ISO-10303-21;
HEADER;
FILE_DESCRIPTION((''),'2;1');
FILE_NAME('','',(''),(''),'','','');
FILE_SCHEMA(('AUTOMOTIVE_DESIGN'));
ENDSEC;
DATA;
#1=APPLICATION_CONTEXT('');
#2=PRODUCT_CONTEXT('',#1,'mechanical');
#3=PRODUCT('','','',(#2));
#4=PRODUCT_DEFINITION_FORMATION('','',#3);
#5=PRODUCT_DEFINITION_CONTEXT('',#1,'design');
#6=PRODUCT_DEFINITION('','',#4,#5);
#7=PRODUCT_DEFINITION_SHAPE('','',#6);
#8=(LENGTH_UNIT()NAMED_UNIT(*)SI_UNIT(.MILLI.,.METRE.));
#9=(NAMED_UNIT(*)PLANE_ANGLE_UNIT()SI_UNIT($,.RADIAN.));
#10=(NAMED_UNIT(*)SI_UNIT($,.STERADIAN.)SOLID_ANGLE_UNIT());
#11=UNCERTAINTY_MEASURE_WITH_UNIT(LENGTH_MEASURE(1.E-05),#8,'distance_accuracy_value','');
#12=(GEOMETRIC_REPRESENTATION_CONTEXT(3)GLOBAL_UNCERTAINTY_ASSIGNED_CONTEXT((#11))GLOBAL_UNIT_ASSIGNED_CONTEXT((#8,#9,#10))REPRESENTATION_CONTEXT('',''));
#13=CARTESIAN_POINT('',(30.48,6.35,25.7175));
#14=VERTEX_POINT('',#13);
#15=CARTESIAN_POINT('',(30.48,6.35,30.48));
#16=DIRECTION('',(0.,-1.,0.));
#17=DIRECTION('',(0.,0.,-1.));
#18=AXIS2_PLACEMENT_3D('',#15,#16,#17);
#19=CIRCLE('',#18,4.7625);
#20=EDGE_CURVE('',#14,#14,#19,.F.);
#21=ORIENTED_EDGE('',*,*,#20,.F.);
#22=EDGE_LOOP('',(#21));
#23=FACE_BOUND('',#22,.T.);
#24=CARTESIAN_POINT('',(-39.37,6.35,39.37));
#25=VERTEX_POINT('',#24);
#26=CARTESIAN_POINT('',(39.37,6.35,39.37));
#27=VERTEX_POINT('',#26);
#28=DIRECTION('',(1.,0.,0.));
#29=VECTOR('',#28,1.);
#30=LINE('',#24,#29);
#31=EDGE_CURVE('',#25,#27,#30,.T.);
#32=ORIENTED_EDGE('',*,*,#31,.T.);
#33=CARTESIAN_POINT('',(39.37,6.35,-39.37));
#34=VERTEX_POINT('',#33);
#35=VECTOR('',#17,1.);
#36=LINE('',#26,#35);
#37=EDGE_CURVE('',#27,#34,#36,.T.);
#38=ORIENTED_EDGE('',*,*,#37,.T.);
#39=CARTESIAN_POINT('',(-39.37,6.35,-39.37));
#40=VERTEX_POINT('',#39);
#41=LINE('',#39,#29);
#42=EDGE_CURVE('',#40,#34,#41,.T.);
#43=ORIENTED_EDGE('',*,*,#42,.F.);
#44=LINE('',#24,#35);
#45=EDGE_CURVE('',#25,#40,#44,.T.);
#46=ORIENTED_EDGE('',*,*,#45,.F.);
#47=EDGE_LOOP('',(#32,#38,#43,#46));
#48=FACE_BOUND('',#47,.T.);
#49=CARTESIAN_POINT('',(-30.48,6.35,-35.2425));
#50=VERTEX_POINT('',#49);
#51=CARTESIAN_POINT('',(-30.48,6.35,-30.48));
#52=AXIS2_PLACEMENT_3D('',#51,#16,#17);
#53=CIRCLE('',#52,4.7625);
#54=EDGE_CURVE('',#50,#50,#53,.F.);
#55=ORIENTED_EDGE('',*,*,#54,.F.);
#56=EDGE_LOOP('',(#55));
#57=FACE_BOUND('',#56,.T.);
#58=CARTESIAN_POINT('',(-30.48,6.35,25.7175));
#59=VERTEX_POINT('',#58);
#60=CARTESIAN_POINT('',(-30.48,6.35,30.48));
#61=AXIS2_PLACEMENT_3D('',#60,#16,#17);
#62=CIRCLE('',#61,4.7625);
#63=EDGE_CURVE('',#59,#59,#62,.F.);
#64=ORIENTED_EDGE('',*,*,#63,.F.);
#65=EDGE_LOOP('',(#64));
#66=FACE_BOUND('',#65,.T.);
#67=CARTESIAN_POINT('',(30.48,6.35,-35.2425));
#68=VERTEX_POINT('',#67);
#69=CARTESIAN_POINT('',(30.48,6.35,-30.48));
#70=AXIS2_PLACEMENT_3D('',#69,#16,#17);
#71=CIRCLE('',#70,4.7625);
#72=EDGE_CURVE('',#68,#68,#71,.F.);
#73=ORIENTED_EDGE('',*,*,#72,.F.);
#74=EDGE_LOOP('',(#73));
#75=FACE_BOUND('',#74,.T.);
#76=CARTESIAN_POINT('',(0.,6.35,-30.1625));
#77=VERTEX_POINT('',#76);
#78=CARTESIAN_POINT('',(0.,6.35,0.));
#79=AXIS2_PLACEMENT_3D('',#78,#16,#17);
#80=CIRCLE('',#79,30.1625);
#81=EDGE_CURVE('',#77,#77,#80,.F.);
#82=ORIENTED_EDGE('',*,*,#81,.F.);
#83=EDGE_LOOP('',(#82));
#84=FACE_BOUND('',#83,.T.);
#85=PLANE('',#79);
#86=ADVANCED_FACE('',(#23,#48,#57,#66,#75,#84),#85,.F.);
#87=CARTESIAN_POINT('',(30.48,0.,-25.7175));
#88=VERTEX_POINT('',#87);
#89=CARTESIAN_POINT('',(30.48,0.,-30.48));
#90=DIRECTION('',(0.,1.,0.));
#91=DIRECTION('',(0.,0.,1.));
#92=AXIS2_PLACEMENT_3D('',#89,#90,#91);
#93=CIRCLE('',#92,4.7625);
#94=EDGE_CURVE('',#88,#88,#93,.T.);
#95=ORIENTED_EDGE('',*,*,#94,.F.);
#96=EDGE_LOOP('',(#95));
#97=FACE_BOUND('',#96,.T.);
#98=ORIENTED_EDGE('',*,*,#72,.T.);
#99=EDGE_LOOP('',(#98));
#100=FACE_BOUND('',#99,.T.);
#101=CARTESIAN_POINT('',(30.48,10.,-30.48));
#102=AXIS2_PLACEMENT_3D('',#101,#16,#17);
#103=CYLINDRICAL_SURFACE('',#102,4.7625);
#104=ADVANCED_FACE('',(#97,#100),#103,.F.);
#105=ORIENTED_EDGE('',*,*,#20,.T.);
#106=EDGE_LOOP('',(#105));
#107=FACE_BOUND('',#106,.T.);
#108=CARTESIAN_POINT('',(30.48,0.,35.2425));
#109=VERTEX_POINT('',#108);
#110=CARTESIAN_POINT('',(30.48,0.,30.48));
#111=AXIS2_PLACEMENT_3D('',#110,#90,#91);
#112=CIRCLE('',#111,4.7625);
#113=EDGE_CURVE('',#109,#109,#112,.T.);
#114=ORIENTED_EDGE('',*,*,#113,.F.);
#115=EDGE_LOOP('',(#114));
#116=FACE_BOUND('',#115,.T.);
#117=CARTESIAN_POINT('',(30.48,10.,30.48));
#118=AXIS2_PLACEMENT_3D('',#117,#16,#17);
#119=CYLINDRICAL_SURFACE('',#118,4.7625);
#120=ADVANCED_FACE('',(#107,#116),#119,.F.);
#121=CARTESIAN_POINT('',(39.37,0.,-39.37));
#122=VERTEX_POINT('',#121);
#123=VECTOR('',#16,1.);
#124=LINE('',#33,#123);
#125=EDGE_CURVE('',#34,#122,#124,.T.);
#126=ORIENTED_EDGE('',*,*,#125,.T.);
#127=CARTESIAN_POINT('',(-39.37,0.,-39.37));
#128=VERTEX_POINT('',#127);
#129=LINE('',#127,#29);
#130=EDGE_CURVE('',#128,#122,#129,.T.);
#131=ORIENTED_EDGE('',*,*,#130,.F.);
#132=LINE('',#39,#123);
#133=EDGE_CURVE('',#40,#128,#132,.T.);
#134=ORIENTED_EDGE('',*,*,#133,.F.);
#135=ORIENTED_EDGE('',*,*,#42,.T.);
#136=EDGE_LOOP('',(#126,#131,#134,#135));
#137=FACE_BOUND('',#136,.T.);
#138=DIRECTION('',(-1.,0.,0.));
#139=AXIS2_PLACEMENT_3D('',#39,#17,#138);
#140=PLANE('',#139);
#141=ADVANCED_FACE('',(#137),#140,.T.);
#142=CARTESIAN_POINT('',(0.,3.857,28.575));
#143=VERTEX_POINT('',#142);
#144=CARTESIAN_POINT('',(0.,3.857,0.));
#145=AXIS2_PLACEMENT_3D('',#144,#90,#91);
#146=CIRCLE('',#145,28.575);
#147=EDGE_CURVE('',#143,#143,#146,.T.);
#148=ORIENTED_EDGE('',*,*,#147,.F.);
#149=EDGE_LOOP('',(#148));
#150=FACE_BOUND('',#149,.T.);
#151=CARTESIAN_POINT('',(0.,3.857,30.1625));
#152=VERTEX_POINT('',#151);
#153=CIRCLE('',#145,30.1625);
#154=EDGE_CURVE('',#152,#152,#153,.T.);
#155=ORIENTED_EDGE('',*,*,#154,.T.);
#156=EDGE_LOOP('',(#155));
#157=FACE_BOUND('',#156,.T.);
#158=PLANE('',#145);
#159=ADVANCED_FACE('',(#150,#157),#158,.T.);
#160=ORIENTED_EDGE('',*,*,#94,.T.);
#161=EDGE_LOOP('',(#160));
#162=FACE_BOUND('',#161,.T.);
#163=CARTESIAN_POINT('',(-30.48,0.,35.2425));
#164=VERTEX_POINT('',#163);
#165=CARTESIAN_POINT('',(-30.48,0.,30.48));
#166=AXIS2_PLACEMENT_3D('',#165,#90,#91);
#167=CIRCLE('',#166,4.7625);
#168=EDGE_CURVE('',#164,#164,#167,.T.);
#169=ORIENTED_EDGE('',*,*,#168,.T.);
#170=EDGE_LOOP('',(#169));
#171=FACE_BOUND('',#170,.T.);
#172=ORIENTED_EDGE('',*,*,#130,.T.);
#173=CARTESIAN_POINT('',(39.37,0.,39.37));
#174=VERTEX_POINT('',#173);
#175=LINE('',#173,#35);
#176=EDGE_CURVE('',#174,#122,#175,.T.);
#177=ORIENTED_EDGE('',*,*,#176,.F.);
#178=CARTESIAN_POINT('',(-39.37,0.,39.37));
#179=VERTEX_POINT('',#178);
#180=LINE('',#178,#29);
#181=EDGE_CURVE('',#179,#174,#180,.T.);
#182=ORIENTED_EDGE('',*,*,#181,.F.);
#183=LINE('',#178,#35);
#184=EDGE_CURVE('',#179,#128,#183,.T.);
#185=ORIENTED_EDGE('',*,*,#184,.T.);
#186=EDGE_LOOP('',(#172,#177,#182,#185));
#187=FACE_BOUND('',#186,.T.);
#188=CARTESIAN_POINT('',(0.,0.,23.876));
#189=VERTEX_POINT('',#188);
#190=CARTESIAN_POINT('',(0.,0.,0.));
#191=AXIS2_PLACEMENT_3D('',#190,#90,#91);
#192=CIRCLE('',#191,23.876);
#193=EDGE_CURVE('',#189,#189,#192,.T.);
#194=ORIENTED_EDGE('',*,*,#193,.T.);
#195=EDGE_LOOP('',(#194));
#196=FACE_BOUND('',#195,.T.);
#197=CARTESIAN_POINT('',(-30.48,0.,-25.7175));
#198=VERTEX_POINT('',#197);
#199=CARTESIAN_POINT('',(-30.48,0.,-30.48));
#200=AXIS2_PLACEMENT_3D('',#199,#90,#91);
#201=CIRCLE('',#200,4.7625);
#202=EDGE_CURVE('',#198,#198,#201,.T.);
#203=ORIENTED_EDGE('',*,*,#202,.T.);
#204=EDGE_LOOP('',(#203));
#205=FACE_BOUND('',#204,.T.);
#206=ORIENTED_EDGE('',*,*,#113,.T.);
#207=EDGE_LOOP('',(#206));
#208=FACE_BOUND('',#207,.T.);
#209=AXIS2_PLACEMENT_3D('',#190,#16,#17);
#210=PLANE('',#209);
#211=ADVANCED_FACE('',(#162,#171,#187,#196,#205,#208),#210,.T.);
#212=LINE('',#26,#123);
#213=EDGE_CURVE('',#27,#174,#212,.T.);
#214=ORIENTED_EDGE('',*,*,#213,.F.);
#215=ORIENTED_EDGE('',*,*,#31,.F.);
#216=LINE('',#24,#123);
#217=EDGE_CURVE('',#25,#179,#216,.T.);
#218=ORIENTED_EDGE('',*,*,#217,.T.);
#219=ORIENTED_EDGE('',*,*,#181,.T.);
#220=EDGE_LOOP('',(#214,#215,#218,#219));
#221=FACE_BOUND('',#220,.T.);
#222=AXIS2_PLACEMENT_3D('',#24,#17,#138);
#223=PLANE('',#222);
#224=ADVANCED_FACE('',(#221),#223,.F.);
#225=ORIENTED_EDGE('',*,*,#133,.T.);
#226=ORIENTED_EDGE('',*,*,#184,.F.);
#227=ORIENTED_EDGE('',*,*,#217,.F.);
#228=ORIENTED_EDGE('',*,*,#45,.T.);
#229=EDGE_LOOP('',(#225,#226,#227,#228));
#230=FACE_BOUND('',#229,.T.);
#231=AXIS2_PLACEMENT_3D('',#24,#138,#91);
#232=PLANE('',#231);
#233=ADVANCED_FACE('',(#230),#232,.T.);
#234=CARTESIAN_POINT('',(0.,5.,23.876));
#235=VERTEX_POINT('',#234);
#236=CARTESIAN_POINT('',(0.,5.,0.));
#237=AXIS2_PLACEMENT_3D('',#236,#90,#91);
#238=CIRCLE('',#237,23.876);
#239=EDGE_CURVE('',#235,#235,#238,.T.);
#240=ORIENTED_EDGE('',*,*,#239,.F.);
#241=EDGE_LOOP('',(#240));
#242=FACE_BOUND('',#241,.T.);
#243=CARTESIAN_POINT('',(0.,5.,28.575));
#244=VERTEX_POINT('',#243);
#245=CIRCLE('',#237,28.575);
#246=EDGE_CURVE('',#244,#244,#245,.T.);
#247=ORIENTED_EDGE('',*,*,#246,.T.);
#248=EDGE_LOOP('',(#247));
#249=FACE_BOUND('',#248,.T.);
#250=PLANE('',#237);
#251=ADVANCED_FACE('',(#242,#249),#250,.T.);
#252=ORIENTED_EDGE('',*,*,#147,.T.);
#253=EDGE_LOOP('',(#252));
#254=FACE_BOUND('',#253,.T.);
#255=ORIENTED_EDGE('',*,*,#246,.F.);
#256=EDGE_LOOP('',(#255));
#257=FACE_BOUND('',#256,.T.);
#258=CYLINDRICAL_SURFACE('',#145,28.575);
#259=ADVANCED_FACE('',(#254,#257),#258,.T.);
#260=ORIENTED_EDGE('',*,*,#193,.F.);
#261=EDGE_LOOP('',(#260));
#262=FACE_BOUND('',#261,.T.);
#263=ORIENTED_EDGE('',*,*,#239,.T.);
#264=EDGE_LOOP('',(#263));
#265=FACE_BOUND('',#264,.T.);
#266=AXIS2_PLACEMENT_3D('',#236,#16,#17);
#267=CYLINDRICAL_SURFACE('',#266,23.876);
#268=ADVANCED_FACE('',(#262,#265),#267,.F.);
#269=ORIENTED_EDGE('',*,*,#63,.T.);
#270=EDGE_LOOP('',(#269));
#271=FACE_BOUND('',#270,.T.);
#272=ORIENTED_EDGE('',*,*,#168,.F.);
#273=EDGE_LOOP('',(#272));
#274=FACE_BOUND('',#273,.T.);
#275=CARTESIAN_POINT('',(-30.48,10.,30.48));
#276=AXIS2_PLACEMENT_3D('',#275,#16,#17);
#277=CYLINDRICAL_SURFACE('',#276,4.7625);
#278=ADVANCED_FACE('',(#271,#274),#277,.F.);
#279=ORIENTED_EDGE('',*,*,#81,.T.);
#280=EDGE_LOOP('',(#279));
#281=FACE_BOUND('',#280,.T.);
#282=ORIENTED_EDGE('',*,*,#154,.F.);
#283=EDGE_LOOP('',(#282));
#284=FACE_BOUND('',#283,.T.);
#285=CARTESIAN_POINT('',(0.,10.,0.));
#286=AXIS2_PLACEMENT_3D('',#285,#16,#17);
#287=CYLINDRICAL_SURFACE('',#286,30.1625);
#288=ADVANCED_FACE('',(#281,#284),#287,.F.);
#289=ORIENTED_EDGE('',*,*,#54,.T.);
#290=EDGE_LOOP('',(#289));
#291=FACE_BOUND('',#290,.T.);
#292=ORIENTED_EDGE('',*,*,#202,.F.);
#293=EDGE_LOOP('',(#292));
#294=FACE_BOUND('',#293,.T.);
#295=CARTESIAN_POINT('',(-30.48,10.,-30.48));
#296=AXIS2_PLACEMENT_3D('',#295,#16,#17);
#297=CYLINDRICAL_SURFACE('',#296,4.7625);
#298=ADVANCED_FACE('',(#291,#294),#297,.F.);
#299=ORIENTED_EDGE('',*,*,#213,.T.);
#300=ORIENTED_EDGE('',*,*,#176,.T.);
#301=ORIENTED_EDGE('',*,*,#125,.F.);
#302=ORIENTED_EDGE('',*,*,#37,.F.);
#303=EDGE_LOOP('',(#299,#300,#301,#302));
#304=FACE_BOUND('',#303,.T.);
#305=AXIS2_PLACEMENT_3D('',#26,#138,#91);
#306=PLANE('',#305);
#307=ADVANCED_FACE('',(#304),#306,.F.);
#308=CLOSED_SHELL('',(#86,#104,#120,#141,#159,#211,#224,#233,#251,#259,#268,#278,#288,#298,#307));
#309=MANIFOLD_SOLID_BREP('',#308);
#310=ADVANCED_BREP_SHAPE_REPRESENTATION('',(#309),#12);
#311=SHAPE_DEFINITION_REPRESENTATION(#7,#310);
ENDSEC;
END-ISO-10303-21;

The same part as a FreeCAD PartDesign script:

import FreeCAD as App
import Part
import Sketcher

V = App.Vector
Q = App.Units.Quantity


def add_polygon(sketch, points):
    """Adds a closed chain of lines whose ends are joined by coincident constraints."""
    first, n = sketch.GeometryCount, len(points)
    for a, b in zip(points, points[1:] + points[:1]):
        sketch.addGeometry(Part.LineSegment(App.Vector(*a, 0), App.Vector(*b, 0)), False)
    for i in range(n):
        sketch.addConstraint(Sketcher.Constraint("Coincident", first + i, 2, first + (i + 1) % n, 1))

doc = App.newDocument("Part")
params = doc.addObject("Spreadsheet::Sheet", "Params")
for row, (alias, value) in enumerate([
    ("sketch1_width", "3.1 in"),
    ("pad1_length", "0.25 in"),
    ("sketch2_diameter", "0.375 in"),
    ("pocket1_length", "10 mm"),
    ("sketch3_diameter", "2.375 in"),
    ("pocket2_length", "5 mm"),
    ("sketch4_diameter", "1.88 in"),
    ("pocket3_length", "5 mm"),
    ("sketch5_diameter", "2.25 in"),
    ("sketch5_diameter2", "2.375 in"),
    ("pocket4_length", "0.045 in"),
], start=1):
    params.set(f"A{row}", alias)
    params.set(f"B{row}", "=" + value)
    params.setAlias(f"B{row}", alias)

body = doc.addObject("PartDesign::Body", "Body")

sketch1 = body.newObject("Sketcher::SketchObject", "Sketch")
sketch1.AttachmentSupport = (doc.getObject("XZ_Plane"), [""])
sketch1.MapMode = "FlatFace"
add_polygon(sketch1, [(-39.37, -39.37), (-39.37, 39.37), (39.37, 39.37), (39.37, -39.37)])
sketch1.addConstraint([
    Sketcher.Constraint("Vertical", 0),
    Sketcher.Constraint("Horizontal", 1),
    Sketcher.Constraint("Vertical", 2),
    Sketcher.Constraint("Horizontal", 3),
    Sketcher.Constraint("Symmetric", 0, 2, 2, 2, -1, 1),
    Sketcher.Constraint("Equal", 3, 0),
    Sketcher.Constraint("DistanceX", 1, 1, 1, 2, Q("3.1 in")),
])
sketch1.setExpression("Constraints[10]", "Params.sketch1_width")
pad1 = body.newObject("PartDesign::Pad", "Pad")
pad1.Profile = sketch1
pad1.setExpression("Length", "Params.pad1_length")
pad1.Reversed = True

sketch2 = body.newObject("Sketcher::SketchObject", "Sketch001")
sketch2.AttachmentSupport = (doc.getObject("XZ_Plane"), [""])
sketch2.MapMode = "FlatFace"
sketch2.addGeometry([
    Part.Circle(V(-30.48, -30.48, 0), V(0, 0, 1), 4.7625),
    Part.Circle(V(30.48, -30.48, 0), V(0, 0, 1), 4.7625),
    Part.Circle(V(30.48, 30.48, 0), V(0, 0, 1), 4.7625),
    Part.Circle(V(-30.48, 30.48, 0), V(0, 0, 1), 4.7625),
], False)
sketch2.addConstraint([
    Sketcher.Constraint("Equal", 0, 1),
    Sketcher.Constraint("Equal", 1, 2),
    Sketcher.Constraint("Equal", 2, 3),
    Sketcher.Constraint("Symmetric", 0, 3, 2, 3, -1, 1),
    Sketcher.Constraint("Symmetric", 1, 3, 3, 3, -1, 1),
    Sketcher.Constraint("Symmetric", 0, 3, 1, 3, -2),
    Sketcher.Constraint("Diameter", 0, Q("0.375 in")),
    Sketcher.Constraint("DistanceX", 0, 3, -1, 1, Q("1.2 in")),
    Sketcher.Constraint("DistanceY", 0, 3, -1, 1, Q("1.2 in")),
])
sketch2.setExpression("Constraints[6]", "Params.sketch2_diameter")
pocket1 = body.newObject("PartDesign::Pocket", "Pocket")
pocket1.Profile = sketch2
pocket1.setExpression("Length", "Params.pocket1_length")

sketch3 = body.newObject("Sketcher::SketchObject", "Sketch002")
sketch3.AttachmentSupport = (doc.getObject("XZ_Plane"), [""])
sketch3.MapMode = "FlatFace"
sketch3.AttachmentOffset = App.Placement(V(0, 0, -5), App.Rotation())
sketch3.addGeometry(Part.Circle(V(0, 0, 0), V(0, 0, 1), 30.1625), False)
sketch3.addConstraint([
    Sketcher.Constraint("Coincident", 0, 3, -1, 1),
    Sketcher.Constraint("Diameter", 0, Q("2.375 in")),
])
sketch3.setExpression("Constraints[1]", "Params.sketch3_diameter")
pocket2 = body.newObject("PartDesign::Pocket", "Pocket001")
pocket2.Profile = sketch3
pocket2.setExpression("Length", "Params.pocket2_length")

sketch4 = body.newObject("Sketcher::SketchObject", "Sketch003")
sketch4.AttachmentSupport = (doc.getObject("XZ_Plane"), [""])
sketch4.MapMode = "FlatFace"
sketch4.addGeometry(Part.Circle(V(0, 0, 0), V(0, 0, 1), 23.876), False)
sketch4.addConstraint([
    Sketcher.Constraint("Coincident", 0, 3, -1, 1),
    Sketcher.Constraint("Diameter", 0, Q("1.88 in")),
])
sketch4.setExpression("Constraints[1]", "Params.sketch4_diameter")
pocket3 = body.newObject("PartDesign::Pocket", "Pocket002")
pocket3.Profile = sketch4
pocket3.setExpression("Length", "Params.pocket3_length")

sketch5 = body.newObject("Sketcher::SketchObject", "Sketch004")
sketch5.AttachmentSupport = (doc.getObject("XZ_Plane"), [""])
sketch5.MapMode = "FlatFace"
sketch5.AttachmentOffset = App.Placement(V(0, 0, -5), App.Rotation())
sketch5.addGeometry([
    Part.Circle(V(0, 0, 0), V(0, 0, 1), 30.1625),
    Part.Circle(V(0, 0, 0), V(0, 0, 1), 28.575),
], False)
sketch5.addConstraint([
    Sketcher.Constraint("Coincident", 0, 3, -1, 1),
    Sketcher.Constraint("Coincident", 1, 3, -1, 1),
    Sketcher.Constraint("Diameter", 1, Q("2.25 in")),
    Sketcher.Constraint("Diameter", 0, Q("2.375 in")),
])
sketch5.setExpression("Constraints[2]", "Params.sketch5_diameter")
sketch5.setExpression("Constraints[3]", "Params.sketch5_diameter2")
pocket4 = body.newObject("PartDesign::Pocket", "Pocket003")
pocket4.Profile = sketch5
pocket4.setExpression("Length", "Params.pocket4_length")
pocket4.Reversed = True

doc.recompute()
